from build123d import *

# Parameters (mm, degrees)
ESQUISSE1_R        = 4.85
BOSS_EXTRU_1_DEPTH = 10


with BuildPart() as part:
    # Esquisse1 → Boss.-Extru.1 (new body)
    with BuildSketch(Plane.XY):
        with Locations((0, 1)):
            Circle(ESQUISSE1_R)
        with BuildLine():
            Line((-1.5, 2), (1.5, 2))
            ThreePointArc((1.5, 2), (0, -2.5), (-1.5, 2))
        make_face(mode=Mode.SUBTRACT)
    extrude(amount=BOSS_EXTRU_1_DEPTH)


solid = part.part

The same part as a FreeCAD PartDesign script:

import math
import FreeCAD as App
import Part
import Sketcher

doc = App.newDocument("Part")
params = doc.addObject("Spreadsheet::Sheet", "Params")
for row, (alias, value) in enumerate([
    ("sketch1_diameter", "9.7 mm"),
    ("sketch1_radius", "2.5 mm"),
    ("sketch1_width", "3 mm"),
    ("pad1_length", "10 mm"),
], start=1):
    params.set(f"A{row}", alias)
    params.set(f"B{row}", "=" + value)
    params.setAlias(f"B{row}", alias)

body = doc.addObject("PartDesign::Body", "Body")

sketch1 = doc.addObject("Sketcher::SketchObject", "Sketch")
body.addObject(sketch1)
sketch1.AttachmentSupport = (doc.XY_Plane, [""])
sketch1.MapMode = "FlatFace"
sketch1.addGeometry([
    Part.Circle(App.Vector(0, 1, 0), App.Vector(0, 0, 1), 4.8),
    Part.ArcOfCircle(Part.Circle(App.Vector(0, 0, 0), App.Vector(0, 0, 1), 2.5), math.radians(127), math.radians(413)),
    Part.LineSegment(App.Vector(-1.5, 2, 0), App.Vector(1.5, 2, 0)),
], False)
sketch1.addConstraint([
    Sketcher.Constraint("Coincident", 1, 1, 2, 1),
    Sketcher.Constraint("Coincident", 2, 2, 1, 2),
    Sketcher.Constraint("Horizontal", 2),
    Sketcher.Constraint("Coincident", 1, 3, -1, 1),
    Sketcher.Constraint("PointOnObject", 0, 3, -2),
    Sketcher.Constraint("Diameter", 0, 9.7),
    Sketcher.Constraint("Radius", 1, 2.5),
    Sketcher.Constraint("DistanceX", 2, 1, 2, 2, 3.0),
    Sketcher.Constraint("DistanceY", -1, 1, 0, 3, 1.0),
])
sketch1.setExpression("Constraints[5]", "Params.sketch1_diameter")
sketch1.setExpression("Constraints[6]", "Params.sketch1_radius")
sketch1.setExpression("Constraints[7]", "Params.sketch1_width")
pad1 = doc.addObject("PartDesign::Pad", "Pad")
body.addObject(pad1)
pad1.Profile = sketch1
pad1.setExpression("Length", "Params.pad1_length")

doc.recompute()
